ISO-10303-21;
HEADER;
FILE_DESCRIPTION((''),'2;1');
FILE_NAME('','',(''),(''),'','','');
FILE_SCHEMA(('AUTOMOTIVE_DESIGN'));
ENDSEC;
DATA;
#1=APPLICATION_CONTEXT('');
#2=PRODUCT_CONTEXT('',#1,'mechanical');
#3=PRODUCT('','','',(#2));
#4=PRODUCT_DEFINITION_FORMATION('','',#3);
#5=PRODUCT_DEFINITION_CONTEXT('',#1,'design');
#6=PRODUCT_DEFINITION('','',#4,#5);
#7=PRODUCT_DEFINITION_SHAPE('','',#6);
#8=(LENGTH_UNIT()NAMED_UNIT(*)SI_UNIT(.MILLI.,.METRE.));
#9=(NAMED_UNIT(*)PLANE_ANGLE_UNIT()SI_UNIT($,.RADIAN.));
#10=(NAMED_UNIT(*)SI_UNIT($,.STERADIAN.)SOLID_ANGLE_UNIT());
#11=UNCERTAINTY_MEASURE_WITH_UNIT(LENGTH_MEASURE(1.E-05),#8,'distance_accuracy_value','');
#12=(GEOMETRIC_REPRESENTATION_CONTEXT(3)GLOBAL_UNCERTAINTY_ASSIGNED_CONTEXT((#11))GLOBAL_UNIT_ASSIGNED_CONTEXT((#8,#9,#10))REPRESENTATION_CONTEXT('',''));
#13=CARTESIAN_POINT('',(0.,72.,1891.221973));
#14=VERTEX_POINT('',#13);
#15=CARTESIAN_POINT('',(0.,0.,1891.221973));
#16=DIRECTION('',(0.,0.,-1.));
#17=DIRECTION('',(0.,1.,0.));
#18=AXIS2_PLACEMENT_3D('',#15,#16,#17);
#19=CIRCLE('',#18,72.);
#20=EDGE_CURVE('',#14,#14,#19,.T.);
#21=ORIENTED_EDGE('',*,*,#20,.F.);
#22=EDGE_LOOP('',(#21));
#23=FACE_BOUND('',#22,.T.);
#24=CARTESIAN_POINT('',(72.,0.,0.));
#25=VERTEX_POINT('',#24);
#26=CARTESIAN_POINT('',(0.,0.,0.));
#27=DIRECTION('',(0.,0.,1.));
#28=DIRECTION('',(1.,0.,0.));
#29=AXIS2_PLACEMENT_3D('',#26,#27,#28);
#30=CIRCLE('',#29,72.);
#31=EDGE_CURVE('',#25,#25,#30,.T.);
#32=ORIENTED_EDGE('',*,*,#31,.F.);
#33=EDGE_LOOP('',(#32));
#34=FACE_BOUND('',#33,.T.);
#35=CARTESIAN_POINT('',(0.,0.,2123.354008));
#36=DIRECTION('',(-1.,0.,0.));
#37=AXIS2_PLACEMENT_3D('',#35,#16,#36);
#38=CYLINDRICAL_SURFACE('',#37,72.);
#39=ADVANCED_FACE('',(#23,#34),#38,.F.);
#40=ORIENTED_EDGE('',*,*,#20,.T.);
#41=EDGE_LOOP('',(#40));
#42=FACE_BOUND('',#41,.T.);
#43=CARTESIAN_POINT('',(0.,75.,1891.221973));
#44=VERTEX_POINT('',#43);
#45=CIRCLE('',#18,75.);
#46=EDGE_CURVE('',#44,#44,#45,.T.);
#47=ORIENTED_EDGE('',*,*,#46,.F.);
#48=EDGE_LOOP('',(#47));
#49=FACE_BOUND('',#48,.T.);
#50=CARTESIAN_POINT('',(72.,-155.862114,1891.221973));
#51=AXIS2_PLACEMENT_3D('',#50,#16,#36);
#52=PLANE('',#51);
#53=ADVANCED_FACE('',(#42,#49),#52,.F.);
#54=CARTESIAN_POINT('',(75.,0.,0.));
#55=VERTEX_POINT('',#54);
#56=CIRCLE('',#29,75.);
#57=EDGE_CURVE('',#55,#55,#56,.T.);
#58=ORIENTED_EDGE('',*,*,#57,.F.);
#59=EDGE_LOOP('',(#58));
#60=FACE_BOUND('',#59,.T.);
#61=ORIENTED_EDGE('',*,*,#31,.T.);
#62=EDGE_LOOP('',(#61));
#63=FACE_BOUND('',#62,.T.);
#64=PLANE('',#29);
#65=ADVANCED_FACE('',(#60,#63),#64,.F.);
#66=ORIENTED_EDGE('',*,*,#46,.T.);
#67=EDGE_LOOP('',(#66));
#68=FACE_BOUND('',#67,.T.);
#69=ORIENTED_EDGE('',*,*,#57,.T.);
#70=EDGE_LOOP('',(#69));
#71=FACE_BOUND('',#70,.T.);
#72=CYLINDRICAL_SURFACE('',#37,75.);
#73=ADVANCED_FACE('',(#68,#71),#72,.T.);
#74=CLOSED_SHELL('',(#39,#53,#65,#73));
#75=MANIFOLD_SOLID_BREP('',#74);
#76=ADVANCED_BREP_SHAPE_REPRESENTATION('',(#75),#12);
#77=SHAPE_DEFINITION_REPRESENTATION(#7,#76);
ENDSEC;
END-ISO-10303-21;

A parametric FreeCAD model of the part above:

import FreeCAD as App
import Part
import Sketcher

V = App.Vector

doc = App.newDocument("Part")
body = doc.addObject("PartDesign::Body", "Body")

# Sketch on XY plane
sketch1 = body.newObject("Sketcher::SketchObject", "Sketch")
sketch1.AttachmentSupport = (doc.getObject("XY_Plane"), [""])
sketch1.MapMode = "FlatFace"
sketch1.addGeometry(Part.Circle(V(0, 0, 0), V(0, 0, 1), 75), False)
sketch1.addGeometry(Part.Circle(V(0, 0, 0), V(0, 0, 1), 72), False)
sketch1.addConstraint(Sketcher.Constraint("Coincident", 0, 3, -1, 1))
sketch1.addConstraint(Sketcher.Constraint("Coincident", 1, 3, -1, 1))
sketch1.addConstraint(Sketcher.Constraint("Diameter", 0, 150.0))
sketch1.addConstraint(Sketcher.Constraint("Diameter", 1, 144.0))
pad1 = body.newObject("PartDesign::Pad", "Pad")
pad1.Profile = sketch1
pad1.Length = 1891.221973

doc.recompute()
